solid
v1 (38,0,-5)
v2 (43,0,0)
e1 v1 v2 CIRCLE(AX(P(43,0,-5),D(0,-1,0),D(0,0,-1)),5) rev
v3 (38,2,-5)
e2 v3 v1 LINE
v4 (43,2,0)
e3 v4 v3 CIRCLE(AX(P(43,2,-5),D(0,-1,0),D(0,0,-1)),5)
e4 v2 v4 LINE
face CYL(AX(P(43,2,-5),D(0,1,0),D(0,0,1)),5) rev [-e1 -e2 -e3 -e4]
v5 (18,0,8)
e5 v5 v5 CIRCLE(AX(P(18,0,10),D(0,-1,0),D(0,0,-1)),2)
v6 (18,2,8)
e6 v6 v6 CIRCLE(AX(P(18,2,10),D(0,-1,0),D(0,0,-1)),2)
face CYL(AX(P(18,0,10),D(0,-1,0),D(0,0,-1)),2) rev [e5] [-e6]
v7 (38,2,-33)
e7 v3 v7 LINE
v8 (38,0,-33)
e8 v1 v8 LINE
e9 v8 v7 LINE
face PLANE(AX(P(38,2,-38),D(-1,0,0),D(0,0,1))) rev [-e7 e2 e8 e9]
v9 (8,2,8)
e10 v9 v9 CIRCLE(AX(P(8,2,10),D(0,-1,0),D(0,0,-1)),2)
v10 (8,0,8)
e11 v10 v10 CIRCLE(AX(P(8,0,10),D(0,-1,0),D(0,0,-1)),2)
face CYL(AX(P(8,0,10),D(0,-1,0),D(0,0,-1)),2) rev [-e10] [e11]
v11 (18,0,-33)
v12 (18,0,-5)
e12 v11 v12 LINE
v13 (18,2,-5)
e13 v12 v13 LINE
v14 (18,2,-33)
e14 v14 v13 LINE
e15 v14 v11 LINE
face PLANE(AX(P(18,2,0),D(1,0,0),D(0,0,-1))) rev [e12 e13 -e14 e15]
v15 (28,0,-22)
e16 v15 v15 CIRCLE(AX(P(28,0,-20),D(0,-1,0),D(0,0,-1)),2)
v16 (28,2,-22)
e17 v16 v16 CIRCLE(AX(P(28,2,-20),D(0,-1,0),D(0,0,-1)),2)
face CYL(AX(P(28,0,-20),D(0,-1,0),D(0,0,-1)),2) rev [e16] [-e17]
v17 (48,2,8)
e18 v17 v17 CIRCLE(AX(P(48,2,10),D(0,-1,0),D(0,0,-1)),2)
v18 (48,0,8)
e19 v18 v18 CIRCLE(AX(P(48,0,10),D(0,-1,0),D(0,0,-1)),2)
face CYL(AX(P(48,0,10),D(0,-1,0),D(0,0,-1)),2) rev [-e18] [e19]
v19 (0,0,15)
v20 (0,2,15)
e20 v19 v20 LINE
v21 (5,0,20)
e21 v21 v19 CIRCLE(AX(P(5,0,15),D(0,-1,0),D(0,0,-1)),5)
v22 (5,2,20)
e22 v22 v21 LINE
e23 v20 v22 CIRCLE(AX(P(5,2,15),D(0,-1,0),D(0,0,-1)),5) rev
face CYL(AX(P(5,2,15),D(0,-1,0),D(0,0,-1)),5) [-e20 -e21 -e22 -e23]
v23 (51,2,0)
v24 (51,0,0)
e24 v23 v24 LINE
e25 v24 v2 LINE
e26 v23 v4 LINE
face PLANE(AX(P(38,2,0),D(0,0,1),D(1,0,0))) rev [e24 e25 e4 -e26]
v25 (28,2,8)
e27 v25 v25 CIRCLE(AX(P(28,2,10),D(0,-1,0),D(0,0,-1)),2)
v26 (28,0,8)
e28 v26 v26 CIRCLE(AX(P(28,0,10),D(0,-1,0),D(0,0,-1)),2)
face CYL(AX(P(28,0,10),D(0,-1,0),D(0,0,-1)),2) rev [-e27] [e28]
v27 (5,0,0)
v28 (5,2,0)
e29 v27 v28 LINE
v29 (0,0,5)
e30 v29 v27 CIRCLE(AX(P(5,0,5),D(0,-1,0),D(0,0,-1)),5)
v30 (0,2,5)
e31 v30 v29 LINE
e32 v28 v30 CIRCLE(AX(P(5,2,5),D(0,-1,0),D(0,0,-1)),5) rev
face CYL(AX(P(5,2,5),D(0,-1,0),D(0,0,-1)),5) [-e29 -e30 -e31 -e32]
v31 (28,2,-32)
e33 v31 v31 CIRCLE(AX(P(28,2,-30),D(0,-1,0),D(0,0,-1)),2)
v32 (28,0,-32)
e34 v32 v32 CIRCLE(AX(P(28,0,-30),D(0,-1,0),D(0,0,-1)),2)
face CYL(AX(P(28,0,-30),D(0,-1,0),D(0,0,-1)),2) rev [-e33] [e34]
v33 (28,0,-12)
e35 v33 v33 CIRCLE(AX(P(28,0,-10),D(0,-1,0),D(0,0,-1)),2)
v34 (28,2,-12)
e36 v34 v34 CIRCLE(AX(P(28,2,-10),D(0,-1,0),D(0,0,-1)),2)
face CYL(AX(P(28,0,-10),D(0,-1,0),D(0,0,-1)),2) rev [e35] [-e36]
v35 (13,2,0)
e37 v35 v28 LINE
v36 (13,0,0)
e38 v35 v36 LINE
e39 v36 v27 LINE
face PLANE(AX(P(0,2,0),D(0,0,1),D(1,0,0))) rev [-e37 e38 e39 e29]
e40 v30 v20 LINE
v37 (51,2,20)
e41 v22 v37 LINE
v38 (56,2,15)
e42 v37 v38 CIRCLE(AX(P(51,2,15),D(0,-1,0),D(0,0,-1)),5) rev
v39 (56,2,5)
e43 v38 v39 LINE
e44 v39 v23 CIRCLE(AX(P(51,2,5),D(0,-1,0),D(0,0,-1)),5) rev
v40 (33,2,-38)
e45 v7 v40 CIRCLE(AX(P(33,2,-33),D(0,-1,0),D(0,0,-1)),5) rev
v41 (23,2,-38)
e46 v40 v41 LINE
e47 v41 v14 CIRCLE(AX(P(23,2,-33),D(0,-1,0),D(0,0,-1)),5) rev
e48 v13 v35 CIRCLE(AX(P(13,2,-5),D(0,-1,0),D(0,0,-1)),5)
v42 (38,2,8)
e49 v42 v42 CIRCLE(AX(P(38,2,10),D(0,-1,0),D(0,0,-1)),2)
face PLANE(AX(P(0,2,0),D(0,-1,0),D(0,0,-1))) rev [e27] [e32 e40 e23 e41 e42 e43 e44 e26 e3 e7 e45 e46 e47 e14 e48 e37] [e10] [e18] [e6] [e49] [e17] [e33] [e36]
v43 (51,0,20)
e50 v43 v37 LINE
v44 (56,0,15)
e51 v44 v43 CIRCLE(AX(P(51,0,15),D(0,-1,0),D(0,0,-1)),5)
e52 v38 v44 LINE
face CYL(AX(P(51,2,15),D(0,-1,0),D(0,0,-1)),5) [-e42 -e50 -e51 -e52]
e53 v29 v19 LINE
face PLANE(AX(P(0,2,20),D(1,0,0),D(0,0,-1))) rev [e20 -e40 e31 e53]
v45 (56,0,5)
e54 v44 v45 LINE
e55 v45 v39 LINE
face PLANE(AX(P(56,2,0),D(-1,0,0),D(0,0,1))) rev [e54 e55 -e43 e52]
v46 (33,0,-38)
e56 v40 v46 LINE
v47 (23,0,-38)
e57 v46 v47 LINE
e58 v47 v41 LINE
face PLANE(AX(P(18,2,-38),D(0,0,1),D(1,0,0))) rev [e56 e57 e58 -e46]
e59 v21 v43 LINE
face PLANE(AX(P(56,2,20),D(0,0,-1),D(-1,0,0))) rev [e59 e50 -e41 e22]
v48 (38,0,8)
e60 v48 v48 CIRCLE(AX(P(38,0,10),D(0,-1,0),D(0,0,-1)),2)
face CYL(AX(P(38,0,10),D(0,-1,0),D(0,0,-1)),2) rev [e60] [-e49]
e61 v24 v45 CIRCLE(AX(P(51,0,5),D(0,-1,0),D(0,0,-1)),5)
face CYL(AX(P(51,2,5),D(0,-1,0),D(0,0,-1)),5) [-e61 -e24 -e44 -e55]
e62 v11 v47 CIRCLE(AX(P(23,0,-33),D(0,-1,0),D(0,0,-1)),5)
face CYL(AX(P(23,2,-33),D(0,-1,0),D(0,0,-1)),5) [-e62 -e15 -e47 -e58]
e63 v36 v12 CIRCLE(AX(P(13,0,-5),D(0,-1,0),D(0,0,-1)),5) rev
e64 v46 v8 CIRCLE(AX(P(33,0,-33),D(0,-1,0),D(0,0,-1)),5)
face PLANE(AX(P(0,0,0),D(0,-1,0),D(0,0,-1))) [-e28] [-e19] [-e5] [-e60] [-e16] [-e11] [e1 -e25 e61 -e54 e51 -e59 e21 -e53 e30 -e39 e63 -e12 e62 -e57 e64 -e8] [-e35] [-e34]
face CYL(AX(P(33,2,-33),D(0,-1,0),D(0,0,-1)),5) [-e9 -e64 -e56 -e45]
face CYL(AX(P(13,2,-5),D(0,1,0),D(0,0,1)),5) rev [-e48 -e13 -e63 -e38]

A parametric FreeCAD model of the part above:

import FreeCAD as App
import Part
import Sketcher
from FreeCAD import Vector
Q = App.Units.Quantity


def edges_at(feature, points):
    """Names of the edges that pass closest to the given points."""
    edges = feature.Shape.Edges
    near = lambda p: min(range(len(edges)), key=lambda i: edges[i].distToShape(Part.Vertex(*p))[0])
    return sorted({f"Edge{near(p) + 1}" for p in points})

doc = App.newDocument("Part")
params = doc.addObject("Spreadsheet::Sheet", "Params")
for row, (alias, value) in enumerate([
    ("sketch1_width", "18 mm"),
    ("sketch1_width2", "56 mm"),
    ("sketch1_height", "38 mm"),
    ("pad1_length", "2 mm"),
    ("sketch2_diameter", "4 mm"),
    ("hole_diameter", "4 mm"),
    ("fillet_radius", "5 mm"),
    ("fillet2_radius", "5 mm"),
    ("sketch3_diameter", "4 mm"),
    ("hole2_diameter", "4 mm"),
], start=1):
    params.set(f"A{row}", alias)
    params.set(f"B{row}", "=" + value)
    params.setAlias(f"B{row}", alias)

body = doc.addObject("PartDesign::Body", "Body")

# Sketch on XZ plane
sketch1 = doc.addObject("Sketcher::SketchObject", "Sketch")
body.addObject(sketch1)
sketch1.AttachmentSupport = (doc.XZ_Plane, [""])
sketch1.MapMode = "FlatFace"
sketch1.addGeometry([
    Part.LineSegment(Vector(18, 0, 0), Vector(0, 0, 0)),  # 0
    Part.LineSegment(Vector(0, 0, 0), Vector(0, 20, 0)),  # 1
    Part.LineSegment(Vector(0, 20, 0), Vector(56, 20, 0)),  # 2
    Part.LineSegment(Vector(56, 20, 0), Vector(56, 0, 0)),  # 3
    Part.LineSegment(Vector(56, 0, 0), Vector(38, 0, 0)),  # 4
    Part.LineSegment(Vector(38, 0, 0), Vector(38, -38, 0)),  # 5
    Part.LineSegment(Vector(38, -38, 0), Vector(18, -38, 0)),  # 6
    Part.LineSegment(Vector(18, -38, 0), Vector(18, 0, 0)),  # 7
], False)
sketch1.addConstraint([
    Sketcher.Constraint("Coincident", 0, 2, 1, 1),
    Sketcher.Constraint("Coincident", 1, 2, 2, 1),
    Sketcher.Constraint("Coincident", 2, 2, 3, 1),
    Sketcher.Constraint("Coincident", 3, 2, 4, 1),
    Sketcher.Constraint("Coincident", 4, 2, 5, 1),
    Sketcher.Constraint("Coincident", 5, 2, 6, 1),
    Sketcher.Constraint("Coincident", 6, 2, 7, 1),
    Sketcher.Constraint("Coincident", 7, 2, 0, 1),
    Sketcher.Constraint("Horizontal", 0),
    Sketcher.Constraint("Vertical", 1),
    Sketcher.Constraint("Horizontal", 2),
    Sketcher.Constraint("Vertical", 3),
    Sketcher.Constraint("Horizontal", 4),
    Sketcher.Constraint("Vertical", 5),
    Sketcher.Constraint("Horizontal", 6),
    Sketcher.Constraint("Vertical", 7),
    Sketcher.Constraint("Coincident", 0, 2, -1, 1),
    Sketcher.Constraint("PointOnObject", 3, 2, -1),
    Sketcher.Constraint("Equal", 0, 4),
    Sketcher.Constraint("Equal", 6, 1),
    Sketcher.Constraint("DistanceX", 0, 2, 0, 1, Q("18 mm")),
    Sketcher.Constraint("DistanceX", 2, 1, 2, 2, Q("56 mm")),
    Sketcher.Constraint("DistanceY", 5, 2, 5, 1, Q("38 mm")),
])
sketch1.setExpression("Constraints[20]", "Params.sketch1_width")
sketch1.setExpression("Constraints[21]", "Params.sketch1_width2")
sketch1.setExpression("Constraints[22]", "Params.sketch1_height")
pad1 = doc.addObject("PartDesign::Pad", "Pad")
body.addObject(pad1)
pad1.Profile = sketch1
pad1.setExpression("Length", "Params.pad1_length")
pad1.Reversed = True

# Sketch on XZ plane
sketch2 = doc.addObject("Sketcher::SketchObject", "Sketch001")
body.addObject(sketch2)
sketch2.AttachmentSupport = (doc.XZ_Plane, [""])
sketch2.MapMode = "FlatFace"
sketch2.addGeometry([
    Part.Circle(Vector(28, -30, 0), Vector(0, 0, 1), 2),  # 0
    Part.Circle(Vector(28, -10, 0), Vector(0, 0, 1), 2),  # 1
    Part.Circle(Vector(28, 10, 0), Vector(0, 0, 1), 2),  # 2
    Part.Circle(Vector(8, 10, 0), Vector(0, 0, 1), 2),  # 3
    Part.Circle(Vector(48, 10, 0), Vector(0, 0, 1), 2),  # 4
], False)
sketch2.addConstraint([
    Sketcher.Constraint("Equal", 0, 1),
    Sketcher.Constraint("Equal", 1, 2),
    Sketcher.Constraint("Equal", 2, 3),
    Sketcher.Constraint("Equal", 3, 4),
    Sketcher.Constraint("Symmetric", 1, 3, 2, 3, -1),
    Sketcher.Constraint("Horizontal", 2, 3, 3, 3),
    Sketcher.Constraint("Horizontal", 3, 3, 4, 3),
    Sketcher.Constraint("Vertical", 0, 3, 1, 3),
    Sketcher.Constraint("Diameter", 0, Q("4 mm")),
    Sketcher.Constraint("DistanceX", -1, 1, 0, 3, Q("28 mm")),
    Sketcher.Constraint("DistanceY", 0, 3, -1, 1, Q("30 mm")),
    Sketcher.Constraint("DistanceY", 1, 3, -1, 1, Q("10 mm")),
    Sketcher.Constraint("DistanceX", -1, 1, 3, 3, Q("8 mm")),
    Sketcher.Constraint("DistanceX", -1, 1, 4, 3, Q("48 mm")),
])
sketch2.setExpression("Constraints[8]", "Params.sketch2_diameter")
doc.recompute()
hole = doc.addObject("PartDesign::Hole", "Hole")
body.addObject(hole)
hole.Profile = sketch2
hole.ThreadType = "None"
hole.setExpression("Diameter", "Params.hole_diameter")
hole.DepthType = "ThroughAll"
doc.recompute()

fillet = doc.addObject("PartDesign::Fillet", "Fillet")
body.addObject(fillet)
fillet.Base = (hole, edges_at(hole, [
    (0, 1, 0),
    (18, 1, -38),
    (38, 1, -38),
    (56, 1, 0),
    (56, 1, 20),
    (0, 1, 20),
]))
fillet.setExpression("Radius", "Params.fillet_radius")
doc.recompute()

fillet2 = doc.addObject("PartDesign::Fillet", "Fillet001")
body.addObject(fillet2)
fillet2.Base = (fillet, edges_at(fillet, [(18, 1, 0), (38, 1, 0)]))
fillet2.setExpression("Radius", "Params.fillet2_radius")

# Sketch on XZ plane
sketch3 = doc.addObject("Sketcher::SketchObject", "Sketch002")
body.addObject(sketch3)
sketch3.AttachmentSupport = (doc.XZ_Plane, [""])
sketch3.MapMode = "FlatFace"
sketch3.addGeometry([
    Part.Circle(Vector(38, 10, 0), Vector(0, 0, 1), 2),
    Part.Circle(Vector(18, 10, 0), Vector(0, 0, 1), 2),
    Part.Circle(Vector(28, -20, 0), Vector(0, 0, 1), 2),
], False)
sketch3.addConstraint([
    Sketcher.Constraint("Equal", 0, 1),
    Sketcher.Constraint("Equal", 1, 2),
    Sketcher.Constraint("Horizontal", 0, 3, 1, 3),
    Sketcher.Constraint("Diameter", 0, Q("4 mm")),
    Sketcher.Constraint("DistanceX", -1, 1, 0, 3, Q("38 mm")),
    Sketcher.Constraint("DistanceY", -1, 1, 0, 3, Q("10 mm")),
    Sketcher.Constraint("DistanceX", -1, 1, 1, 3, Q("18 mm")),
    Sketcher.Constraint("DistanceX", -1, 1, 2, 3, Q("28 mm")),
    Sketcher.Constraint("DistanceY", 2, 3, -1, 1, Q("20 mm")),
])
sketch3.setExpression("Constraints[3]", "Params.sketch3_diameter")
doc.recompute()
hole2 = doc.addObject("PartDesign::Hole", "Hole001")
body.addObject(hole2)
hole2.Profile = sketch3
hole2.ThreadType = "None"
hole2.setExpression("Diameter", "Params.hole2_diameter")
hole2.DepthType = "ThroughAll"

doc.recompute()
